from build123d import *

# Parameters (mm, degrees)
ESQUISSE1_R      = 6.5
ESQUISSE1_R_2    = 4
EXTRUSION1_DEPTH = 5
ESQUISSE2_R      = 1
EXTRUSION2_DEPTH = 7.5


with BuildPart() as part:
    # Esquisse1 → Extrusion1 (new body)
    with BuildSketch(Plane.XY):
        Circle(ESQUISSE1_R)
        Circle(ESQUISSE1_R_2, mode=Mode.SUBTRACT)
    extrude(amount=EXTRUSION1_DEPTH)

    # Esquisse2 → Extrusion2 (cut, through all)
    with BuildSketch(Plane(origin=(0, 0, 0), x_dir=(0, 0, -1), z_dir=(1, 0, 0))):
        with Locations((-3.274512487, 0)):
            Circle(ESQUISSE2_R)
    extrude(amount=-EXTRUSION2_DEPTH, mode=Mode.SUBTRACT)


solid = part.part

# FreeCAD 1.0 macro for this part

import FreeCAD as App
import Part
import Sketcher
from FreeCAD import Vector
Q = App.Units.Quantity

doc = App.newDocument("Part")
params = doc.addObject("Spreadsheet::Sheet", "Params")
for row, (alias, value) in enumerate([
    ("sketch1_diameter", "13 mm"),
    ("sketch1_diameter2", "8 mm"),
    ("pad1_length", "5 mm"),
    ("sketch2_diameter", "2 mm"),
], start=1):
    params.set(f"A{row}", alias)
    params.set(f"B{row}", "=" + value)
    params.setAlias(f"B{row}", alias)

body = doc.addObject("PartDesign::Body", "Body")

# Sketch on XY plane
sketch1 = body.newObject("Sketcher::SketchObject", "Sketch")
sketch1.AttachmentSupport = (doc.getObject("XY_Plane"), [""])
sketch1.MapMode = "FlatFace"
sketch1.addGeometry([
    Part.Circle(Vector(0, 0, 0), Vector(0, 0, 1), 6.5),
    Part.Circle(Vector(0, 0, 0), Vector(0, 0, 1), 4),
], False)
sketch1.addConstraint([
    Sketcher.Constraint("Coincident", 0, 3, -1, 1),
    Sketcher.Constraint("Coincident", 1, 3, -1, 1),
    Sketcher.Constraint("Diameter", 0, Q("13 mm")),
    Sketcher.Constraint("Diameter", 1, Q("8 mm")),
])
sketch1.setExpression("Constraints[2]", "Params.sketch1_diameter")
sketch1.setExpression("Constraints[3]", "Params.sketch1_diameter2")
pad1 = body.newObject("PartDesign::Pad", "Pad")
pad1.Profile = sketch1
pad1.setExpression("Length", "Params.pad1_length")

# Sketch on YZ plane
sketch2 = body.newObject("Sketcher::SketchObject", "Sketch001")
sketch2.AttachmentSupport = (doc.getObject("YZ_Plane"), [""])
sketch2.MapMode = "FlatFace"
sketch2.addGeometry(Part.Circle(Vector(0, 3.274512, 0), Vector(0, 0, 1), 1), False)
sketch2.addConstraint([
    Sketcher.Constraint("PointOnObject", 0, 3, -2),
    Sketcher.Constraint("Diameter", 0, Q("2 mm")),
    Sketcher.Constraint("DistanceY", -1, 1, 0, 3, Q("3.274512 mm")),
])
sketch2.setExpression("Constraints[1]", "Params.sketch2_diameter")
pocket1 = body.newObject("PartDesign::Pocket", "Pocket")
pocket1.Profile = sketch2
pocket1.Type = "ThroughAll"

doc.recompute()
